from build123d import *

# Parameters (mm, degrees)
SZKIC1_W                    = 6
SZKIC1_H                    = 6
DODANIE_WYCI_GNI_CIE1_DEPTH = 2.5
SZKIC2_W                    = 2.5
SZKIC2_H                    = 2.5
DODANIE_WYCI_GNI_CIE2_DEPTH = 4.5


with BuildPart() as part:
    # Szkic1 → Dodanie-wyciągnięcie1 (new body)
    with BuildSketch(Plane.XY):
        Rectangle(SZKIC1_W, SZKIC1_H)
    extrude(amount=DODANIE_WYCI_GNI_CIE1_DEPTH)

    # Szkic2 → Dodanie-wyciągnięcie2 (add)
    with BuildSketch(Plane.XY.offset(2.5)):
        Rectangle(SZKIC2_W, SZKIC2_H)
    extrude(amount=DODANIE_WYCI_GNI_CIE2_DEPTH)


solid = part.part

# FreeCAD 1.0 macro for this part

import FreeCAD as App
import Part
import Sketcher

V = App.Vector
Q = App.Units.Quantity


def add_polygon(sketch, points):
    """Adds a closed chain of lines whose ends are joined by coincident constraints."""
    first, n = sketch.GeometryCount, len(points)
    for a, b in zip(points, points[1:] + points[:1]):
        sketch.addGeometry(Part.LineSegment(App.Vector(*a, 0), App.Vector(*b, 0)), False)
    for i in range(n):
        sketch.addConstraint(Sketcher.Constraint("Coincident", first + i, 2, first + (i + 1) % n, 1))

doc = App.newDocument("Part")
params = doc.addObject("Spreadsheet::Sheet", "Params")
for row, (alias, value) in enumerate([
    ("sketch1_width", "6 mm"),
    ("pad1_length", "2.5 mm"),
    ("sketch2_width", "2.5 mm"),
    ("pad2_length", "4.5 mm"),
], start=1):
    params.set(f"A{row}", alias)
    params.set(f"B{row}", "=" + value)
    params.setAlias(f"B{row}", alias)

body = doc.addObject("PartDesign::Body", "Body")

# Sketch on XY plane
sketch1 = body.newObject("Sketcher::SketchObject", "Sketch")
sketch1.AttachmentSupport = (doc.getObject("XY_Plane"), [""])
sketch1.MapMode = "FlatFace"
add_polygon(sketch1, [(-3, 3), (-3, -3), (3, -3), (3, 3)])  # lines 0-3
sketch1.addConstraint([
    Sketcher.Constraint("Vertical", 0),
    Sketcher.Constraint("Horizontal", 1),
    Sketcher.Constraint("Vertical", 2),
    Sketcher.Constraint("Horizontal", 3),
    Sketcher.Constraint("Symmetric", 0, 2, 2, 2, -1, 1),
    Sketcher.Constraint("Equal", 3, 0),
    Sketcher.Constraint("DistanceX", 1, 1, 1, 2, Q("6 mm")),
])
sketch1.setExpression("Constraints[10]", "Params.sketch1_width")
pad1 = body.newObject("PartDesign::Pad", "Pad")
pad1.Profile = sketch1
pad1.setExpression("Length", "Params.pad1_length")

# Sketch on XY plane
sketch2 = body.newObject("Sketcher::SketchObject", "Sketch001")
sketch2.AttachmentSupport = (doc.getObject("XY_Plane"), [""])
sketch2.MapMode = "FlatFace"
sketch2.AttachmentOffset = App.Placement(V(0, 0, 2.5), App.Rotation())
add_polygon(sketch2, [(-1.25, 1.25), (-1.25, -1.25), (1.25, -1.25), (1.25, 1.25)])  # lines 0-3
sketch2.addConstraint([
    Sketcher.Constraint("Vertical", 0),
    Sketcher.Constraint("Horizontal", 1),
    Sketcher.Constraint("Vertical", 2),
    Sketcher.Constraint("Horizontal", 3),
    Sketcher.Constraint("Symmetric", 0, 2, 2, 2, -1, 1),
    Sketcher.Constraint("Equal", 3, 0),
    Sketcher.Constraint("DistanceX", 1, 1, 1, 2, Q("2.5 mm")),
])
sketch2.setExpression("Constraints[10]", "Params.sketch2_width")
pad2 = body.newObject("PartDesign::Pad", "Pad001")
pad2.Profile = sketch2
pad2.setExpression("Length", "Params.pad2_length")

doc.recompute()
